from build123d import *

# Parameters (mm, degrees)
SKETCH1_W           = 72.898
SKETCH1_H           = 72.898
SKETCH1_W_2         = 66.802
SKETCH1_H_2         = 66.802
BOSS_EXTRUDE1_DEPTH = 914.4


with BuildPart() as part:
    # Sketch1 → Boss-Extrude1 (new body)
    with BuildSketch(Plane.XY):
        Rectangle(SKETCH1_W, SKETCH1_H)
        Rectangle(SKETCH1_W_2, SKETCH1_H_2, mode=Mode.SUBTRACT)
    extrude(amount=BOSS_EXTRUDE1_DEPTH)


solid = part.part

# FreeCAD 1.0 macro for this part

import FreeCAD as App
import Part
import Sketcher
Q = App.Units.Quantity

doc = App.newDocument("Part")
body = doc.addObject("PartDesign::Body", "Body")

sketch1 = doc.addObject("Sketcher::SketchObject", "Sketch")
body.addObject(sketch1)
sketch1.AttachmentSupport = (doc.XY_Plane, [""])
sketch1.MapMode = "FlatFace"
sketch1.addGeometry([
    Part.LineSegment(App.Vector(-36.449, 36.449, 0), App.Vector(-36.449, -36.449, 0)),
    Part.LineSegment(App.Vector(-36.449, -36.449, 0), App.Vector(36.449, -36.449, 0)),
    Part.LineSegment(App.Vector(36.449, -36.449, 0), App.Vector(36.449, 36.449, 0)),
    Part.LineSegment(App.Vector(36.449, 36.449, 0), App.Vector(-36.449, 36.449, 0)),
    Part.LineSegment(App.Vector(33.401, -33.401, 0), App.Vector(-33.401, -33.401, 0)),
    Part.LineSegment(App.Vector(-33.401, -33.401, 0), App.Vector(-33.401, 33.401, 0)),
    Part.LineSegment(App.Vector(-33.401, 33.401, 0), App.Vector(33.401, 33.401, 0)),
    Part.LineSegment(App.Vector(33.401, 33.401, 0), App.Vector(33.401, -33.401, 0)),
], False)
sketch1.addConstraint([
    Sketcher.Constraint("Coincident", 0, 2, 1, 1),
    Sketcher.Constraint("Coincident", 1, 2, 2, 1),
    Sketcher.Constraint("Coincident", 2, 2, 3, 1),
    Sketcher.Constraint("Coincident", 3, 2, 0, 1),
    Sketcher.Constraint("Coincident", 4, 2, 5, 1),
    Sketcher.Constraint("Coincident", 5, 2, 6, 1),
    Sketcher.Constraint("Coincident", 6, 2, 7, 1),
    Sketcher.Constraint("Coincident", 7, 2, 4, 1),
    Sketcher.Constraint("Vertical", 0),
    Sketcher.Constraint("Horizontal", 1),
    Sketcher.Constraint("Vertical", 2),
    Sketcher.Constraint("Horizontal", 3),
    Sketcher.Constraint("Horizontal", 4),
    Sketcher.Constraint("Vertical", 5),
    Sketcher.Constraint("Horizontal", 6),
    Sketcher.Constraint("Vertical", 7),
    Sketcher.Constraint("Symmetric", 0, 2, 2, 2, -1, 1),
    Sketcher.Constraint("Symmetric", 4, 2, 6, 2, -1, 1),
    Sketcher.Constraint("Equal", 3, 0),
    Sketcher.Constraint("Equal", 6, 5),
    Sketcher.Constraint("DistanceX", 1, 1, 1, 2, Q("2.87 in")),
    Sketcher.Constraint("DistanceX", 4, 2, 4, 1, Q("2.63 in")),
])
pad1 = doc.addObject("PartDesign::Pad", "Pad")
body.addObject(pad1)
pad1.Profile = sketch1
pad1.Length = Q("36 in")

doc.recompute()
